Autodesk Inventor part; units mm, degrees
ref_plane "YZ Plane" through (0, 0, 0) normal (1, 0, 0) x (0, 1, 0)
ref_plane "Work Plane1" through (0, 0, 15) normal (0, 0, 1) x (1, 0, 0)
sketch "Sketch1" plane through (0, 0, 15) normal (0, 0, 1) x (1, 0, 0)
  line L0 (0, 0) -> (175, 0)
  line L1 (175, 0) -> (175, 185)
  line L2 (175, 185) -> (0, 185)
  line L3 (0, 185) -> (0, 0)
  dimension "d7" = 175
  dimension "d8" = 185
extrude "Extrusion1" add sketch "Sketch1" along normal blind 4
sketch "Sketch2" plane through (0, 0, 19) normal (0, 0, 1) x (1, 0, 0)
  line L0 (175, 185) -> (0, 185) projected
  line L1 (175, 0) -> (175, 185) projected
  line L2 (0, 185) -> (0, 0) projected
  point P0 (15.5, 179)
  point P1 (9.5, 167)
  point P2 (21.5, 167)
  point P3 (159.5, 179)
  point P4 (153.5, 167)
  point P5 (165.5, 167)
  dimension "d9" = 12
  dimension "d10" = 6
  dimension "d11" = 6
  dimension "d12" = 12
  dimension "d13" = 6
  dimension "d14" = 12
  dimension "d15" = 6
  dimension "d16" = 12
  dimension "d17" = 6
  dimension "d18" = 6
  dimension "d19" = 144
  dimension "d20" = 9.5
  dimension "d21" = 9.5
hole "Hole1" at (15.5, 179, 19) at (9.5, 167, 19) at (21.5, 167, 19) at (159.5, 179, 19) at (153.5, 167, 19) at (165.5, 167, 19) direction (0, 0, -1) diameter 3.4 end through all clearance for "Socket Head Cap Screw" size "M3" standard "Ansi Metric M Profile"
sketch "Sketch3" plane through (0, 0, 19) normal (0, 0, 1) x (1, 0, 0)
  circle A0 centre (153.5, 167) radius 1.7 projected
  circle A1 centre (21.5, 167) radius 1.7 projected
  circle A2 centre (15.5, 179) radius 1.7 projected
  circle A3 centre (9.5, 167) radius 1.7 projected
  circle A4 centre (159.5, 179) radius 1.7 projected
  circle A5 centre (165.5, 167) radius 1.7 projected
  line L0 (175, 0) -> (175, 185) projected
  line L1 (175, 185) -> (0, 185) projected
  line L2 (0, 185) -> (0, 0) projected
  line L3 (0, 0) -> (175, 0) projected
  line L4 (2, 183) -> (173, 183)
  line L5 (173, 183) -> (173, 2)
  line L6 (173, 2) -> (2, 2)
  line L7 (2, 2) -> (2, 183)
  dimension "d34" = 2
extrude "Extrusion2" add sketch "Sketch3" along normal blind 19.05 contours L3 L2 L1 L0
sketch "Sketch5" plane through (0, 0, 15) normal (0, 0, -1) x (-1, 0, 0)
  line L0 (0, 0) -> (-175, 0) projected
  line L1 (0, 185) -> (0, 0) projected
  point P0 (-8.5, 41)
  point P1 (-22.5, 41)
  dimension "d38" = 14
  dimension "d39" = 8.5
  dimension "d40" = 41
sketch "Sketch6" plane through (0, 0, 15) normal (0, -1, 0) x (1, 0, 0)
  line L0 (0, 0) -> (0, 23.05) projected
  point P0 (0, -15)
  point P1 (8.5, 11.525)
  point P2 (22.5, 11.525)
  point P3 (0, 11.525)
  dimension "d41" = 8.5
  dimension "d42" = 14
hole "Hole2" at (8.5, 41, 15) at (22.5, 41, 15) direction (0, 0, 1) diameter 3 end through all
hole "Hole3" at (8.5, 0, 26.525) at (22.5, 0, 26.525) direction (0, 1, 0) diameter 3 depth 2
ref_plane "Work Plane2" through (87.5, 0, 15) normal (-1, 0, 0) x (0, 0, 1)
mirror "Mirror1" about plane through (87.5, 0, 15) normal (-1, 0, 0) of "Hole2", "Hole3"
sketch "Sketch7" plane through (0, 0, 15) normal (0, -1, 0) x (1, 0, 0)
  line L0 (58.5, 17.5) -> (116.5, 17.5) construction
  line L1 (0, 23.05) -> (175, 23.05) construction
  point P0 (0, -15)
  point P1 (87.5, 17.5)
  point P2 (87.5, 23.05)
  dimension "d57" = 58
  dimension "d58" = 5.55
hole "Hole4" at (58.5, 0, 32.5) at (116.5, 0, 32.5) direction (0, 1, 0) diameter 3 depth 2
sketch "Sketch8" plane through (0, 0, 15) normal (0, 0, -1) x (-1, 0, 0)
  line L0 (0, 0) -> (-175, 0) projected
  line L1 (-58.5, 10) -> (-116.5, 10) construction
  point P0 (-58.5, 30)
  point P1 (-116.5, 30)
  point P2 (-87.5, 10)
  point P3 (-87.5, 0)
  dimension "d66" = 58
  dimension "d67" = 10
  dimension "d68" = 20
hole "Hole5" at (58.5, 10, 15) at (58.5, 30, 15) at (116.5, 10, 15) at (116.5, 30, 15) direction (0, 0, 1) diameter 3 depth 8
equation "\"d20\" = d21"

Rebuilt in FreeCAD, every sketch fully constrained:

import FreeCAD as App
import Part
import Sketcher
Q = App.Units.Quantity


def add_polygon(sketch, points):
    """Adds a closed chain of lines whose ends are joined by coincident constraints."""
    first, n = sketch.GeometryCount, len(points)
    for a, b in zip(points, points[1:] + points[:1]):
        sketch.addGeometry(Part.LineSegment(App.Vector(*a, 0), App.Vector(*b, 0)), False)
    for i in range(n):
        sketch.addConstraint(Sketcher.Constraint("Coincident", first + i, 2, first + (i + 1) % n, 1))

doc = App.newDocument("Part")
params = doc.addObject("Spreadsheet::Sheet", "Params")
for row, (alias, value) in enumerate([
    ("sketch1_width", "175 mm"),
    ("sketch1_height", "185 mm"),
    ("pad1_length", "4 mm"),
    ("sketch2_diameter", "3.4 mm"),
    ("hole_diameter", "3.4 mm"),
    ("sketch3_width", "175 mm"),
    ("sketch3_height", "185 mm"),
    ("pad2_length", "19.05 mm"),
    ("sketch4_diameter", "3 mm"),
    ("hole2_diameter", "3 mm"),
    ("sketch5_diameter", "3 mm"),
    ("hole3_diameter", "3 mm"),
    ("hole3_depth", "2 mm"),
    ("sketch6_diameter", "3 mm"),
    ("hole4_diameter", "3 mm"),
    ("hole4_depth", "2 mm"),
    ("sketch7_diameter", "3 mm"),
    ("hole5_diameter", "3 mm"),
    ("hole5_depth", "8 mm"),
], start=1):
    params.set(f"A{row}", alias)
    params.set(f"B{row}", "=" + value)
    params.setAlias(f"B{row}", alias)

body = doc.addObject("PartDesign::Body", "Body")

# Sketch on XY plane
sketch1 = body.newObject("Sketcher::SketchObject", "Sketch")
sketch1.AttachmentSupport = (doc.getObject("XY_Plane"), [""])
sketch1.MapMode = "FlatFace"
sketch1.AttachmentOffset = App.Placement(App.Vector(0, 0, 15), App.Rotation())
add_polygon(sketch1, [(0, 185), (0, 0), (175, 0), (175, 185)])  # lines 0-3
sketch1.addConstraint([
    Sketcher.Constraint("Vertical", 0),
    Sketcher.Constraint("Horizontal", 1),
    Sketcher.Constraint("Vertical", 2),
    Sketcher.Constraint("Horizontal", 3),
    Sketcher.Constraint("Coincident", 0, 2, -1, 1),
    Sketcher.Constraint("DistanceX", 1, 1, 1, 2, Q("175 mm")),
    Sketcher.Constraint("DistanceY", 0, 2, 0, 1, Q("185 mm")),
])
sketch1.setExpression("Constraints[9]", "Params.sketch1_width")
sketch1.setExpression("Constraints[10]", "Params.sketch1_height")
pad1 = body.newObject("PartDesign::Pad", "Pad")
pad1.Profile = sketch1
pad1.setExpression("Length", "Params.pad1_length")

# Sketch on XY plane
sketch2 = body.newObject("Sketcher::SketchObject", "Sketch001")
sketch2.AttachmentSupport = (doc.getObject("XY_Plane"), [""])
sketch2.MapMode = "FlatFace"
sketch2.AttachmentOffset = App.Placement(App.Vector(0, 0, 19), App.Rotation())
sketch2.addGeometry([
    Part.Circle(App.Vector(15.5, 179, 0), App.Vector(0, 0, 1), 1.7),  # 0
    Part.Circle(App.Vector(9.5, 167, 0), App.Vector(0, 0, 1), 1.7),  # 1
    Part.Circle(App.Vector(21.5, 167, 0), App.Vector(0, 0, 1), 1.7),  # 2
    Part.Circle(App.Vector(159.5, 179, 0), App.Vector(0, 0, 1), 1.7),  # 3
    Part.Circle(App.Vector(153.5, 167, 0), App.Vector(0, 0, 1), 1.7),  # 4
    Part.Circle(App.Vector(165.5, 167, 0), App.Vector(0, 0, 1), 1.7),  # 5
], False)
sketch2.addConstraint([
    Sketcher.Constraint("Equal", 0, 1),
    Sketcher.Constraint("Equal", 1, 2),
    Sketcher.Constraint("Equal", 2, 3),
    Sketcher.Constraint("Equal", 3, 4),
    Sketcher.Constraint("Equal", 4, 5),
    Sketcher.Constraint("Horizontal", 1, 3, 2, 3),
    Sketcher.Constraint("Horizontal", 0, 3, 3, 3),
    Sketcher.Constraint("Horizontal", 2, 3, 4, 3),
    Sketcher.Constraint("Horizontal", 4, 3, 5, 3),
    Sketcher.Constraint("Diameter", 0, Q("3.4 mm")),
    Sketcher.Constraint("DistanceY", -1, 1, 0, 3, Q("179 mm")),
    Sketcher.Constraint("DistanceY", -1, 1, 1, 3, Q("167 mm")),
    Sketcher.Constraint("DistanceX", 1, 3, 0, 3, Q("6 mm")),
    Sketcher.Constraint("DistanceX", 1, 3, 2, 3, Q("12 mm")),
    Sketcher.Constraint("DistanceX", 2, 3, 3, 3, Q("138 mm")),
    Sketcher.Constraint("DistanceX", 4, 3, 3, 3, Q("6 mm")),
    Sketcher.Constraint("DistanceX", 4, 3, 5, 3, Q("12 mm")),
    Sketcher.Constraint("DistanceX", -1, 1, 0, 3, Q("15.5 mm")),
])
sketch2.setExpression("Constraints[9]", "Params.sketch2_diameter")
doc.recompute()
hole = body.newObject("PartDesign::Hole", "Hole")
hole.Profile = sketch2
hole.ThreadType = "None"
hole.setExpression("Diameter", "Params.hole_diameter")
hole.DepthType = "ThroughAll"

# Sketch on XY plane
sketch3 = body.newObject("Sketcher::SketchObject", "Sketch002")
sketch3.AttachmentSupport = (doc.getObject("XY_Plane"), [""])
sketch3.MapMode = "FlatFace"
sketch3.AttachmentOffset = App.Placement(App.Vector(0, 0, 19), App.Rotation())
add_polygon(sketch3, [(0, 0), (175, 0), (175, 185), (0, 185)])  # lines 0-3
add_polygon(sketch3, [(2, 2), (2, 183), (173, 183), (173, 2)])  # lines 4-7
sketch3.addConstraint([
    Sketcher.Constraint("Horizontal", 0),
    Sketcher.Constraint("Vertical", 1),
    Sketcher.Constraint("Horizontal", 2),
    Sketcher.Constraint("Vertical", 3),
    Sketcher.Constraint("Vertical", 4),
    Sketcher.Constraint("Horizontal", 5),
    Sketcher.Constraint("Vertical", 6),
    Sketcher.Constraint("Horizontal", 7),
    Sketcher.Constraint("Coincident", 3, 2, -1, 1),
    Sketcher.Constraint("DistanceX", -1, 1, 4, 2, Q("2 mm")),
    Sketcher.Constraint("DistanceY", -1, 1, 6, 2, Q("2 mm")),
    Sketcher.Constraint("DistanceY", 4, 2, 2, 2, Q("2 mm")),
    Sketcher.Constraint("DistanceX", 5, 2, 1, 2, Q("2 mm")),
    Sketcher.Constraint("DistanceX", 0, 1, 0, 2, Q("175 mm")),
    Sketcher.Constraint("DistanceY", 1, 1, 1, 2, Q("185 mm")),
])
sketch3.setExpression("Constraints[21]", "Params.sketch3_width")
sketch3.setExpression("Constraints[22]", "Params.sketch3_height")
pad2 = body.newObject("PartDesign::Pad", "Pad001")
pad2.Profile = sketch3
pad2.setExpression("Length", "Params.pad2_length")

# Sketch on XY plane
sketch4 = body.newObject("Sketcher::SketchObject", "Sketch003")
sketch4.AttachmentSupport = (doc.getObject("XY_Plane"), [""])
sketch4.MapMode = "FlatFace"
sketch4.AttachmentOffset = App.Placement(App.Vector(0, 0, 15), App.Rotation())
sketch4.addGeometry([
    Part.Circle(App.Vector(8.5, 41, 0), App.Vector(0, 0, 1), 1.5),
    Part.Circle(App.Vector(22.5, 41, 0), App.Vector(0, 0, 1), 1.5),
], False)
sketch4.addConstraint([
    Sketcher.Constraint("Equal", 0, 1),
    Sketcher.Constraint("Horizontal", 0, 3, 1, 3),
    Sketcher.Constraint("Diameter", 0, Q("3 mm")),
    Sketcher.Constraint("DistanceY", -1, 1, 0, 3, Q("41 mm")),
    Sketcher.Constraint("DistanceX", 0, 3, 1, 3, Q("14 mm")),
    Sketcher.Constraint("DistanceX", -1, 1, 0, 3, Q("8.5 mm")),
])
sketch4.setExpression("Constraints[2]", "Params.sketch4_diameter")
doc.recompute()
hole2 = body.newObject("PartDesign::Hole", "Hole001")
hole2.Profile = sketch4
hole2.ThreadType = "None"
hole2.setExpression("Diameter", "Params.hole2_diameter")
hole2.DepthType = "ThroughAll"
hole2.Reversed = True

# Sketch on XZ plane
sketch5 = body.newObject("Sketcher::SketchObject", "Sketch004")
sketch5.AttachmentSupport = (doc.getObject("XZ_Plane"), [""])
sketch5.MapMode = "FlatFace"
sketch5.addGeometry([
    Part.Circle(App.Vector(8.5, 26.525, 0), App.Vector(0, 0, 1), 1.5),
    Part.Circle(App.Vector(22.5, 26.525, 0), App.Vector(0, 0, 1), 1.5),
], False)
sketch5.addConstraint([
    Sketcher.Constraint("Equal", 0, 1),
    Sketcher.Constraint("Horizontal", 0, 3, 1, 3),
    Sketcher.Constraint("Diameter", 0, Q("3 mm")),
    Sketcher.Constraint("DistanceX", 0, 3, 1, 3, Q("14 mm")),
    Sketcher.Constraint("DistanceX", -1, 1, 0, 3, Q("8.5 mm")),
    Sketcher.Constraint("DistanceY", -1, 1, 0, 3, Q("26.525 mm")),
])
sketch5.setExpression("Constraints[2]", "Params.sketch5_diameter")
doc.recompute()
hole3 = body.newObject("PartDesign::Hole", "Hole002")
hole3.Profile = sketch5
hole3.ThreadType = "None"
hole3.setExpression("Diameter", "Params.hole3_diameter")
hole3.DepthType = "Dimension"
hole3.setExpression("Depth", "Params.hole3_depth")
hole3.DrillPoint = "Flat"
doc.recompute()

datumplane = body.newObject("PartDesign::Plane", "DatumPlane")
datumplane.AttachmentSupport = (doc.getObject("YZ_Plane"), [""])
datumplane.MapMode = "FlatFace"
datumplane.AttachmentOffset = App.Placement(App.Vector(0, 0, 87.5), App.Rotation())
mirrored = body.newObject("PartDesign::Mirrored", "Mirrored")
mirrored.Originals = [hole2, hole3]
mirrored.MirrorPlane = (datumplane, [""])
body.Tip = mirrored

# Sketch on XZ plane
sketch6 = body.newObject("Sketcher::SketchObject", "Sketch005")
sketch6.AttachmentSupport = (doc.getObject("XZ_Plane"), [""])
sketch6.MapMode = "FlatFace"
sketch6.addGeometry([
    Part.Circle(App.Vector(58.5, 32.5, 0), App.Vector(0, 0, 1), 1.5),
    Part.Circle(App.Vector(116.5, 32.5, 0), App.Vector(0, 0, 1), 1.5),
], False)
sketch6.addConstraint([
    Sketcher.Constraint("Equal", 0, 1),
    Sketcher.Constraint("Horizontal", 0, 3, 1, 3),
    Sketcher.Constraint("Diameter", 0, Q("3 mm")),
    Sketcher.Constraint("DistanceX", 0, 3, 1, 3, Q("58 mm")),
    Sketcher.Constraint("DistanceX", -1, 1, 0, 3, Q("58.5 mm")),
    Sketcher.Constraint("DistanceY", -1, 1, 0, 3, Q("32.5 mm")),
])
sketch6.setExpression("Constraints[2]", "Params.sketch6_diameter")
doc.recompute()
hole4 = body.newObject("PartDesign::Hole", "Hole003")
hole4.Profile = sketch6
hole4.ThreadType = "None"
hole4.setExpression("Diameter", "Params.hole4_diameter")
hole4.DepthType = "Dimension"
hole4.setExpression("Depth", "Params.hole4_depth")
hole4.DrillPoint = "Flat"

# Sketch on XY plane
sketch7 = body.newObject("Sketcher::SketchObject", "Sketch006")
sketch7.AttachmentSupport = (doc.getObject("XY_Plane"), [""])
sketch7.MapMode = "FlatFace"
sketch7.AttachmentOffset = App.Placement(App.Vector(0, 0, 15), App.Rotation())
sketch7.addGeometry([
    Part.Circle(App.Vector(58.5, 10, 0), App.Vector(0, 0, 1), 1.5),
    Part.Circle(App.Vector(58.5, 30, 0), App.Vector(0, 0, 1), 1.5),
    Part.Circle(App.Vector(116.5, 10, 0), App.Vector(0, 0, 1), 1.5),
    Part.Circle(App.Vector(116.5, 30, 0), App.Vector(0, 0, 1), 1.5),
], False)
sketch7.addConstraint([
    Sketcher.Constraint("Equal", 0, 1),
    Sketcher.Constraint("Equal", 1, 2),
    Sketcher.Constraint("Equal", 2, 3),
    Sketcher.Constraint("Horizontal", 0, 3, 2, 3),
    Sketcher.Constraint("Horizontal", 1, 3, 3, 3),
    Sketcher.Constraint("Vertical", 0, 3, 1, 3),
    Sketcher.Constraint("Vertical", 2, 3, 3, 3),
    Sketcher.Constraint("Diameter", 0, Q("3 mm")),
    Sketcher.Constraint("DistanceY", -1, 1, 0, 3, Q("10 mm")),
    Sketcher.Constraint("DistanceY", -1, 1, 1, 3, Q("30 mm")),
    Sketcher.Constraint("DistanceX", 0, 3, 2, 3, Q("58 mm")),
    Sketcher.Constraint("DistanceX", -1, 1, 0, 3, Q("58.5 mm")),
])
sketch7.setExpression("Constraints[7]", "Params.sketch7_diameter")
doc.recompute()
hole5 = body.newObject("PartDesign::Hole", "Hole004")
hole5.Profile = sketch7
hole5.ThreadType = "None"
hole5.setExpression("Diameter", "Params.hole5_diameter")
hole5.DepthType = "Dimension"
hole5.setExpression("Depth", "Params.hole5_depth")
hole5.DrillPoint = "Flat"
hole5.Reversed = True

doc.recompute()
